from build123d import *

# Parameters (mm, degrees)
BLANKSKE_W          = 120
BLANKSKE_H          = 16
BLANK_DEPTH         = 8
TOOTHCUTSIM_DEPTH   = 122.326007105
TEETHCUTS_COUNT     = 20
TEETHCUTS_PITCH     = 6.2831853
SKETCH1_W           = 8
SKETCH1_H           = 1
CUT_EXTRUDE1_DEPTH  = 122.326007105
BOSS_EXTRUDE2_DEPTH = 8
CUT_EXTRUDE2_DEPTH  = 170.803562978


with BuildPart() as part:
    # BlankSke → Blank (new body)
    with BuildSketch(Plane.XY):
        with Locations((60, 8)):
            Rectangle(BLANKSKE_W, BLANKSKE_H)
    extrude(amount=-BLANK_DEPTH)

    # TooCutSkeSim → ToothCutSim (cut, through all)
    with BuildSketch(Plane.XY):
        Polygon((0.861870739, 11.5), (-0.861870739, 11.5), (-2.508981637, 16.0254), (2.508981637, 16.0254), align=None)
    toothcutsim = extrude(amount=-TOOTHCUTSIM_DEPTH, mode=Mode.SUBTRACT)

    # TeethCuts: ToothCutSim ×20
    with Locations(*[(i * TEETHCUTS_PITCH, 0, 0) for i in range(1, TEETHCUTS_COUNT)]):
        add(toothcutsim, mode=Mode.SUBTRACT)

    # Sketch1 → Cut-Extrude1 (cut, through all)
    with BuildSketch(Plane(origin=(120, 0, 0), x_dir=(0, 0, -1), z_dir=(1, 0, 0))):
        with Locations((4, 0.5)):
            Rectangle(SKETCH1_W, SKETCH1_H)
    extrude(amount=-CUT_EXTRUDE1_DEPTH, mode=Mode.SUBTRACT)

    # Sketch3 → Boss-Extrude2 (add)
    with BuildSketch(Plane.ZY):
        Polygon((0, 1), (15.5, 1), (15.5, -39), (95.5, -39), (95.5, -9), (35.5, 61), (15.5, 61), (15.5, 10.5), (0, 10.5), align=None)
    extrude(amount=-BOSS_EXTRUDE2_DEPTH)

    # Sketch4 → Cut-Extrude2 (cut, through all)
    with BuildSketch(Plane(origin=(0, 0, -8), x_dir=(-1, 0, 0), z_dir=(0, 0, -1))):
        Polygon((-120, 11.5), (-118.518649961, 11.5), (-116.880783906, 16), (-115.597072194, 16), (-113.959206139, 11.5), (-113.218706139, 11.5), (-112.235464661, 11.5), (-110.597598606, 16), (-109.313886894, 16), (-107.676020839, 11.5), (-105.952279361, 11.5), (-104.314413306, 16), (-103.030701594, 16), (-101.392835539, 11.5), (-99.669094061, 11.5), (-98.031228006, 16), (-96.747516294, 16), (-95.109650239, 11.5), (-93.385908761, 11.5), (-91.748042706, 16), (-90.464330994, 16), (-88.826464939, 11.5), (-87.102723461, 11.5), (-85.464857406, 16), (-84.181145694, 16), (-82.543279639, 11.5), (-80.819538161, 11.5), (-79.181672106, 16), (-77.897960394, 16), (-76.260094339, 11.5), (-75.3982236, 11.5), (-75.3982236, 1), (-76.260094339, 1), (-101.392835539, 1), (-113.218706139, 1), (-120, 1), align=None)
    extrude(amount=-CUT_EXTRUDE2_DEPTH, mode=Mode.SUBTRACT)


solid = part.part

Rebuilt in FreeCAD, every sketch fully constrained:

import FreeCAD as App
import Part
import Sketcher

V = App.Vector
Q = App.Units.Quantity

doc = App.newDocument("Part")
body = doc.addObject("PartDesign::Body", "Body")

# Sketch on XY plane
sketch1 = body.newObject("Sketcher::SketchObject", "Sketch")
sketch1.AttachmentSupport = (doc.getObject("XY_Plane"), [""])
sketch1.MapMode = "FlatFace"
sketch1.addGeometry([
    Part.LineSegment(V(0, 16, 0), V(0, 0, 0)),
    Part.LineSegment(V(0, 0, 0), V(120, 0, 0)),
    Part.LineSegment(V(120, 0, 0), V(120, 16, 0)),
    Part.LineSegment(V(120, 16, 0), V(0, 16, 0)),
], False)
sketch1.addConstraint([
    Sketcher.Constraint("Coincident", 0, 2, 1, 1),
    Sketcher.Constraint("Coincident", 1, 2, 2, 1),
    Sketcher.Constraint("Coincident", 2, 2, 3, 1),
    Sketcher.Constraint("Coincident", 3, 2, 0, 1),
    Sketcher.Constraint("Vertical", 0),
    Sketcher.Constraint("Horizontal", 1),
    Sketcher.Constraint("Vertical", 2),
    Sketcher.Constraint("Horizontal", 3),
    Sketcher.Constraint("Coincident", 0, 2, -1, 1),
    Sketcher.Constraint("DistanceX", 1, 1, 1, 2, Q("120 mm")),
    Sketcher.Constraint("DistanceY", 0, 2, 0, 1, Q("16 mm")),
])
pad1 = body.newObject("PartDesign::Pad", "Pad")
pad1.Profile = sketch1
pad1.Length = 8
pad1.Reversed = True

# Sketch on XY plane
sketch2 = body.newObject("Sketcher::SketchObject", "Sketch001")
sketch2.AttachmentSupport = (doc.getObject("XY_Plane"), [""])
sketch2.MapMode = "FlatFace"
sketch2.addGeometry([
    Part.LineSegment(V(-0.861871, 11.5, 0), V(0.861871, 11.5, 0)),
    Part.LineSegment(V(0.861871, 11.5, 0), V(2.508982, 16.0254, 0)),
    Part.LineSegment(V(2.508982, 16.0254, 0), V(-2.508982, 16.0254, 0)),
    Part.LineSegment(V(-2.508982, 16.0254, 0), V(-0.861871, 11.5, 0)),
], False)
sketch2.addConstraint([
    Sketcher.Constraint("Coincident", 0, 2, 1, 1),
    Sketcher.Constraint("Coincident", 1, 2, 2, 1),
    Sketcher.Constraint("Coincident", 2, 2, 3, 1),
    Sketcher.Constraint("Coincident", 3, 2, 0, 1),
    Sketcher.Constraint("Horizontal", 0),
    Sketcher.Constraint("Horizontal", 2),
    Sketcher.Constraint("Equal", 1, 3),
    Sketcher.Constraint("Angle", 1, Q("70 deg")),
    Sketcher.Constraint("DistanceY", -1, 1, 0, 2, Q("11.5 mm")),
    Sketcher.Constraint("DistanceX", 0, 1, 0, 2, Q("1.723741 mm")),
    Sketcher.Constraint("DistanceY", -1, 1, 1, 2, Q("16.0254 mm")),
    Sketcher.Constraint("DistanceX", -1, 1, 0, 2, Q("0.861871 mm")),
])
pocket1 = body.newObject("PartDesign::Pocket", "Pocket")
pocket1.Profile = sketch2
pocket1.Type = "ThroughAll"
doc.recompute()

linearpattern = body.newObject("PartDesign::LinearPattern", "LinearPattern")
linearpattern.Originals = [pocket1]
linearpattern.Direction = (doc.getObject("X_Axis"), [""])
linearpattern.Mode = "offset"
linearpattern.Offset = 6.283185
linearpattern.Occurrences = 20
body.Tip = linearpattern

# Sketch on YZ plane
sketch3 = body.newObject("Sketcher::SketchObject", "Sketch002")
sketch3.AttachmentSupport = (doc.getObject("YZ_Plane"), [""])
sketch3.MapMode = "FlatFace"
sketch3.AttachmentOffset = App.Placement(V(0, 0, 120), App.Rotation())
sketch3.addGeometry([
    Part.LineSegment(V(1, 0, 0), V(0, 0, 0)),
    Part.LineSegment(V(0, 0, 0), V(0, -8, 0)),
    Part.LineSegment(V(0, -8, 0), V(1, -8, 0)),
    Part.LineSegment(V(1, -8, 0), V(1, 0, 0)),
], False)
sketch3.addConstraint([
    Sketcher.Constraint("Coincident", 0, 2, 1, 1),
    Sketcher.Constraint("Coincident", 1, 2, 2, 1),
    Sketcher.Constraint("Coincident", 2, 2, 3, 1),
    Sketcher.Constraint("Coincident", 3, 2, 0, 1),
    Sketcher.Constraint("Horizontal", 0),
    Sketcher.Constraint("Vertical", 1),
    Sketcher.Constraint("Horizontal", 2),
    Sketcher.Constraint("Vertical", 3),
    Sketcher.Constraint("Coincident", 0, 2, -1, 1),
    Sketcher.Constraint("DistanceX", 0, 2, 0, 1, Q("1 mm")),
    Sketcher.Constraint("DistanceY", 1, 2, 1, 1, Q("8 mm")),
])
pocket2 = body.newObject("PartDesign::Pocket", "Pocket001")
pocket2.Profile = sketch3
pocket2.Type = "ThroughAll"

# Sketch on YZ plane
sketch4 = body.newObject("Sketcher::SketchObject", "Sketch003")
sketch4.AttachmentSupport = (doc.getObject("YZ_Plane"), [""])
sketch4.MapMode = "FlatFace"
sketch4.addGeometry([
    Part.LineSegment(V(1, 0, 0), V(1, 15.5, 0)),  # 0
    Part.LineSegment(V(1, 15.5, 0), V(-39, 15.5, 0)),  # 1
    Part.LineSegment(V(-39, 15.5, 0), V(-39, 95.5, 0)),  # 2
    Part.LineSegment(V(-39, 95.5, 0), V(-9, 95.5, 0)),  # 3
    Part.LineSegment(V(-9, 95.5, 0), V(61, 35.5, 0)),  # 4
    Part.LineSegment(V(61, 35.5, 0), V(61, 15.5, 0)),  # 5
    Part.LineSegment(V(61, 15.5, 0), V(10.5, 15.5, 0)),  # 6
    Part.LineSegment(V(10.5, 15.5, 0), V(10.5, 0, 0)),  # 7
    Part.LineSegment(V(10.5, 0, 0), V(1, 0, 0)),  # 8
], False)
sketch4.addConstraint([
    Sketcher.Constraint("Coincident", 0, 2, 1, 1),
    Sketcher.Constraint("Coincident", 1, 2, 2, 1),
    Sketcher.Constraint("Coincident", 2, 2, 3, 1),
    Sketcher.Constraint("Coincident", 3, 2, 4, 1),
    Sketcher.Constraint("Coincident", 4, 2, 5, 1),
    Sketcher.Constraint("Coincident", 5, 2, 6, 1),
    Sketcher.Constraint("Coincident", 6, 2, 7, 1),
    Sketcher.Constraint("Coincident", 7, 2, 8, 1),
    Sketcher.Constraint("Coincident", 8, 2, 0, 1),
    Sketcher.Constraint("Vertical", 0),
    Sketcher.Constraint("Horizontal", 1),
    Sketcher.Constraint("Vertical", 2),
    Sketcher.Constraint("Horizontal", 3),
    Sketcher.Constraint("Vertical", 5),
    Sketcher.Constraint("Horizontal", 6),
    Sketcher.Constraint("Vertical", 7),
    Sketcher.Constraint("Horizontal", 8),
    Sketcher.Constraint("PointOnObject", 7, 2, -1),
    Sketcher.Constraint("Horizontal", 1, 2, 5, 2),
    Sketcher.Constraint("DistanceX", 1, 2, 1, 1, Q("40 mm")),
    Sketcher.Constraint("DistanceX", 3, 1, 3, 2, Q("30 mm")),
    Sketcher.Constraint("DistanceY", 2, 1, 2, 2, Q("80 mm")),
    Sketcher.Constraint("DistanceY", 5, 2, 5, 1, Q("20 mm")),
    Sketcher.Constraint("DistanceX", 6, 2, 6, 1, Q("50.5 mm")),
    Sketcher.Constraint("DistanceX", 8, 2, 8, 1, Q("9.5 mm")),
    Sketcher.Constraint("DistanceY", 0, 1, 0, 2, Q("15.5 mm")),
    Sketcher.Constraint("DistanceX", -1, 1, 0, 2, Q("1 mm")),
])
pad2 = body.newObject("PartDesign::Pad", "Pad001")
pad2.Profile = sketch4
pad2.Length = 8

# Sketch on XY plane
sketch5 = body.newObject("Sketcher::SketchObject", "Sketch004")
sketch5.AttachmentSupport = (doc.getObject("XY_Plane"), [""])
sketch5.MapMode = "FlatFace"
sketch5.AttachmentOffset = App.Placement(V(0, 0, -8), App.Rotation())
sketch5.addGeometry([
    Part.LineSegment(V(118.51865, 11.5, 0), V(120, 11.5, 0)),  # 0
    Part.LineSegment(V(120, 11.5, 0), V(120, 1, 0)),  # 1
    Part.LineSegment(V(120, 1, 0), V(75.398224, 1, 0)),  # 2
    Part.LineSegment(V(75.398224, 1, 0), V(75.398224, 11.5, 0)),  # 3
    Part.LineSegment(V(75.398224, 11.5, 0), V(76.260094, 11.5, 0)),  # 4
    Part.LineSegment(V(76.260094, 11.5, 0), V(77.89796, 16, 0)),  # 5
    Part.LineSegment(V(77.89796, 16, 0), V(79.181672, 16, 0)),  # 6
    Part.LineSegment(V(79.181672, 16, 0), V(80.819538, 11.5, 0)),  # 7
    Part.LineSegment(V(80.819538, 11.5, 0), V(82.54328, 11.5, 0)),  # 8
    Part.LineSegment(V(82.54328, 11.5, 0), V(84.181146, 16, 0)),  # 9
    Part.LineSegment(V(84.181146, 16, 0), V(85.464857, 16, 0)),  # 10
    Part.LineSegment(V(85.464857, 16, 0), V(87.102723, 11.5, 0)),  # 11
    Part.LineSegment(V(87.102723, 11.5, 0), V(88.826465, 11.5, 0)),  # 12
    Part.LineSegment(V(88.826465, 11.5, 0), V(90.464331, 16, 0)),  # 13
    Part.LineSegment(V(90.464331, 16, 0), V(91.748043, 16, 0)),  # 14
    Part.LineSegment(V(91.748043, 16, 0), V(93.385909, 11.5, 0)),  # 15
    Part.LineSegment(V(93.385909, 11.5, 0), V(95.10965, 11.5, 0)),  # 16
    Part.LineSegment(V(95.10965, 11.5, 0), V(96.747516, 16, 0)),  # 17
    Part.LineSegment(V(96.747516, 16, 0), V(98.031228, 16, 0)),  # 18
    Part.LineSegment(V(98.031228, 16, 0), V(99.669094, 11.5, 0)),  # 19
    Part.LineSegment(V(99.669094, 11.5, 0), V(101.392836, 11.5, 0)),  # 20
    Part.LineSegment(V(101.392836, 11.5, 0), V(103.030702, 16, 0)),  # 21
    Part.LineSegment(V(103.030702, 16, 0), V(104.314413, 16, 0)),  # 22
    Part.LineSegment(V(104.314413, 16, 0), V(105.952279, 11.5, 0)),  # 23
    Part.LineSegment(V(105.952279, 11.5, 0), V(107.676021, 11.5, 0)),  # 24
    Part.LineSegment(V(107.676021, 11.5, 0), V(109.313887, 16, 0)),  # 25
    Part.LineSegment(V(109.313887, 16, 0), V(110.597599, 16, 0)),  # 26
    Part.LineSegment(V(110.597599, 16, 0), V(112.235465, 11.5, 0)),  # 27
    Part.LineSegment(V(112.235465, 11.5, 0), V(113.959206, 11.5, 0)),  # 28
    Part.LineSegment(V(113.959206, 11.5, 0), V(115.597072, 16, 0)),  # 29
    Part.LineSegment(V(115.597072, 16, 0), V(116.880784, 16, 0)),  # 30
    Part.LineSegment(V(116.880784, 16, 0), V(118.51865, 11.5, 0)),  # 31
], False)
sketch5.addConstraint([
    Sketcher.Constraint("Coincident", 0, 2, 1, 1),
    Sketcher.Constraint("Coincident", 1, 2, 2, 1),
    Sketcher.Constraint("Coincident", 2, 2, 3, 1),
    Sketcher.Constraint("Coincident", 3, 2, 4, 1),
    Sketcher.Constraint("Coincident", 4, 2, 5, 1),
    Sketcher.Constraint("Coincident", 5, 2, 6, 1),
    Sketcher.Constraint("Coincident", 6, 2, 7, 1),
    Sketcher.Constraint("Coincident", 7, 2, 8, 1),
    Sketcher.Constraint("Coincident", 8, 2, 9, 1),
    Sketcher.Constraint("Coincident", 9, 2, 10, 1),
    Sketcher.Constraint("Coincident", 10, 2, 11, 1),
    Sketcher.Constraint("Coincident", 11, 2, 12, 1),
    Sketcher.Constraint("Coincident", 12, 2, 13, 1),
    Sketcher.Constraint("Coincident", 13, 2, 14, 1),
    Sketcher.Constraint("Coincident", 14, 2, 15, 1),
    Sketcher.Constraint("Coincident", 15, 2, 16, 1),
    Sketcher.Constraint("Coincident", 16, 2, 17, 1),
    Sketcher.Constraint("Coincident", 17, 2, 18, 1),
    Sketcher.Constraint("Coincident", 18, 2, 19, 1),
    Sketcher.Constraint("Coincident", 19, 2, 20, 1),
    Sketcher.Constraint("Coincident", 20, 2, 21, 1),
    Sketcher.Constraint("Coincident", 21, 2, 22, 1),
    Sketcher.Constraint("Coincident", 22, 2, 23, 1),
    Sketcher.Constraint("Coincident", 23, 2, 24, 1),
    Sketcher.Constraint("Coincident", 24, 2, 25, 1),
    Sketcher.Constraint("Coincident", 25, 2, 26, 1),
    Sketcher.Constraint("Coincident", 26, 2, 27, 1),
    Sketcher.Constraint("Coincident", 27, 2, 28, 1),
    Sketcher.Constraint("Coincident", 28, 2, 29, 1),
    Sketcher.Constraint("Coincident", 29, 2, 30, 1),
    Sketcher.Constraint("Coincident", 30, 2, 31, 1),
    Sketcher.Constraint("Coincident", 31, 2, 0, 1),
    Sketcher.Constraint("Horizontal", 0),
    Sketcher.Constraint("Vertical", 1),
    Sketcher.Constraint("Horizontal", 2),
    Sketcher.Constraint("Vertical", 3),
    Sketcher.Constraint("Horizontal", 4),
    Sketcher.Constraint("Horizontal", 6),
    Sketcher.Constraint("Horizontal", 8),
    Sketcher.Constraint("Horizontal", 10),
    Sketcher.Constraint("Horizontal", 12),
    Sketcher.Constraint("Horizontal", 14),
    Sketcher.Constraint("Horizontal", 16),
    Sketcher.Constraint("Horizontal", 18),
    Sketcher.Constraint("Horizontal", 20),
    Sketcher.Constraint("Horizontal", 22),
    Sketcher.Constraint("Horizontal", 24),
    Sketcher.Constraint("Horizontal", 26),
    Sketcher.Constraint("Horizontal", 28),
    Sketcher.Constraint("Horizontal", 30),
    Sketcher.Constraint("Parallel", 5, 9),
    Sketcher.Constraint("Parallel", 7, 11),
    Sketcher.Constraint("Parallel", 9, 13),
    Sketcher.Constraint("Parallel", 11, 15),
    Sketcher.Constraint("Parallel", 13, 17),
    Sketcher.Constraint("Parallel", 15, 19),
    Sketcher.Constraint("Parallel", 17, 21),
    Sketcher.Constraint("Parallel", 19, 23),
    Sketcher.Constraint("Parallel", 21, 25),
    Sketcher.Constraint("Parallel", 23, 27),
    Sketcher.Constraint("Parallel", 25, 29),
    Sketcher.Constraint("Parallel", 27, 31),
    Sketcher.Constraint("Horizontal", 0, 2, 3, 2),
    Sketcher.Constraint("Horizontal", 4, 2, 7, 2),
    Sketcher.Constraint("Horizontal", 6, 2, 9, 2),
    Sketcher.Constraint("Horizontal", 8, 2, 11, 2),
    Sketcher.Constraint("Horizontal", 10, 2, 13, 2),
    Sketcher.Constraint("Horizontal", 12, 2, 15, 2),
    Sketcher.Constraint("Horizontal", 14, 2, 17, 2),
    Sketcher.Constraint("Horizontal", 16, 2, 19, 2),
    Sketcher.Constraint("Horizontal", 18, 2, 21, 2),
    Sketcher.Constraint("Horizontal", 20, 2, 23, 2),
    Sketcher.Constraint("Horizontal", 22, 2, 25, 2),
    Sketcher.Constraint("Horizontal", 24, 2, 27, 2),
    Sketcher.Constraint("Horizontal", 26, 2, 29, 2),
    Sketcher.Constraint("Equal", 6, 10),
    Sketcher.Constraint("Equal", 8, 12),
    Sketcher.Constraint("Equal", 10, 14),
    Sketcher.Constraint("Equal", 12, 16),
    Sketcher.Constraint("Equal", 14, 18),
    Sketcher.Constraint("Equal", 16, 20),
    Sketcher.Constraint("Equal", 18, 22),
    Sketcher.Constraint("Equal", 20, 24),
    Sketcher.Constraint("Equal", 22, 26),
    Sketcher.Constraint("Equal", 24, 28),
    Sketcher.Constraint("Equal", 26, 30),
    Sketcher.Constraint("Equal", 5, 7),
    Sketcher.Constraint("Angle", 5, Q("70 deg")),
    Sketcher.Constraint("DistanceY", 1, 2, 1, 1, Q("10.5 mm")),
    Sketcher.Constraint("DistanceX", -1, 1, 0, 2, Q("120 mm")),
    Sketcher.Constraint("DistanceY", -1, 1, 1, 2, Q("1 mm")),
    Sketcher.Constraint("DistanceY", -1, 1, 5, 2, Q("16 mm")),
    Sketcher.Constraint("DistanceX", 0, 1, 0, 2, Q("1.48135 mm")),
    Sketcher.Constraint("DistanceX", 4, 1, 4, 2, Q("0.861871 mm")),
    Sketcher.Constraint("DistanceX", 6, 1, 6, 2, Q("1.283712 mm")),
    Sketcher.Constraint("DistanceX", 8, 1, 8, 2, Q("1.723741 mm")),
])
pocket3 = body.newObject("PartDesign::Pocket", "Pocket002")
pocket3.Profile = sketch5
pocket3.Type = "ThroughAll"
pocket3.Reversed = True

doc.recompute()
